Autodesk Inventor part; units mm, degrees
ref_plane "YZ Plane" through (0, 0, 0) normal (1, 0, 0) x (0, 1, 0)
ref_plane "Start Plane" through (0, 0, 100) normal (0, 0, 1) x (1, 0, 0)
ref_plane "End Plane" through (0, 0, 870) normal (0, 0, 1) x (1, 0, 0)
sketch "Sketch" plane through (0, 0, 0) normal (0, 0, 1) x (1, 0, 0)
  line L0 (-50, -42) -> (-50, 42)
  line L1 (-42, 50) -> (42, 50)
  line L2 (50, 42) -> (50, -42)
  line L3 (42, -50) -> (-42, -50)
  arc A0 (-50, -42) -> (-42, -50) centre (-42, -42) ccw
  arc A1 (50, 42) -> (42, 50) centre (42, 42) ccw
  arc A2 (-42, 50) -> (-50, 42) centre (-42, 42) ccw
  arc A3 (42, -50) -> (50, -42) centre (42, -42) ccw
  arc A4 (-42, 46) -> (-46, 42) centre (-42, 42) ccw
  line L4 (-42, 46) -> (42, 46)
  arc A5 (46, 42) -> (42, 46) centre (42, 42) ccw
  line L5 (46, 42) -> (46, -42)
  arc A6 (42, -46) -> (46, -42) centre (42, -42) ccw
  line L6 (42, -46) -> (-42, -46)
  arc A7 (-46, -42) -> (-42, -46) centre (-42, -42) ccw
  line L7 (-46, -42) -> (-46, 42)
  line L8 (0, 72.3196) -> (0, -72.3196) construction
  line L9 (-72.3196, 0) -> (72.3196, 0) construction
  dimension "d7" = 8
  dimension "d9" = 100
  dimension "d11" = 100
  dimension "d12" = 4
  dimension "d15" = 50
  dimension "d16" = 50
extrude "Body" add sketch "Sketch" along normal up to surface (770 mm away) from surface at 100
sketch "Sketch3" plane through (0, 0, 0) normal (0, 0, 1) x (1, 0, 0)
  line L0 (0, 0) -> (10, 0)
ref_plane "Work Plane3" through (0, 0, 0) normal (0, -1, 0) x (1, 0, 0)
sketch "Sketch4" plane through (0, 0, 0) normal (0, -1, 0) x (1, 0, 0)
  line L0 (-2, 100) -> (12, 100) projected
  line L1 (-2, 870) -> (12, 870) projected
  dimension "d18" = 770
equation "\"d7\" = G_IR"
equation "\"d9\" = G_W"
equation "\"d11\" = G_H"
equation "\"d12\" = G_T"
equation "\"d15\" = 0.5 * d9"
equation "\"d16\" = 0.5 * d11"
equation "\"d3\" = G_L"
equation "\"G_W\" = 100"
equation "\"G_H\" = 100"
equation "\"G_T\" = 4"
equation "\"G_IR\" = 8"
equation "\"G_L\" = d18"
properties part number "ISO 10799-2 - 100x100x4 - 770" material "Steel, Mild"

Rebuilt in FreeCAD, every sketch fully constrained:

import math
import FreeCAD as App
import Part
import Sketcher

V = App.Vector
Q = App.Units.Quantity

doc = App.newDocument("Part")
body = doc.addObject("PartDesign::Body", "Body")

# Sketch on XY plane
sketch1 = body.newObject("Sketcher::SketchObject", "Sketch")
sketch1.AttachmentSupport = (doc.getObject("XY_Plane"), [""])
sketch1.MapMode = "FlatFace"
sketch1.AttachmentOffset = App.Placement(V(0, 0, 100), App.Rotation())
sketch1.addGeometry([
    Part.LineSegment(V(-50, 42, 0), V(-50, -42, 0)),  # 0
    Part.ArcOfCircle(Part.Circle(V(-42, -42, 0), V(0, 0, 1), 8), math.radians(180), math.radians(270)),  # 1
    Part.LineSegment(V(-42, -50, 0), V(42, -50, 0)),  # 2
    Part.ArcOfCircle(Part.Circle(V(42, -42, 0), V(0, 0, 1), 8), math.radians(-90), math.radians(0)),  # 3
    Part.LineSegment(V(50, -42, 0), V(50, 42, 0)),  # 4
    Part.ArcOfCircle(Part.Circle(V(42, 42, 0), V(0, 0, 1), 8), math.radians(0), math.radians(90)),  # 5
    Part.LineSegment(V(42, 50, 0), V(-42, 50, 0)),  # 6
    Part.ArcOfCircle(Part.Circle(V(-42, 42, 0), V(0, 0, 1), 8), math.radians(90), math.radians(180)),  # 7
    Part.ArcOfCircle(Part.Circle(V(-42, 42, 0), V(0, 0, 1), 4), math.radians(90), math.radians(180)),  # 8
    Part.LineSegment(V(-42, 46, 0), V(42, 46, 0)),  # 9
    Part.ArcOfCircle(Part.Circle(V(42, 42, 0), V(0, 0, 1), 4), math.radians(0), math.radians(90)),  # 10
    Part.LineSegment(V(46, 42, 0), V(46, -42, 0)),  # 11
    Part.ArcOfCircle(Part.Circle(V(42, -42, 0), V(0, 0, 1), 4), math.radians(-90), math.radians(0)),  # 12
    Part.LineSegment(V(42, -46, 0), V(-42, -46, 0)),  # 13
    Part.ArcOfCircle(Part.Circle(V(-42, -42, 0), V(0, 0, 1), 4), math.radians(180), math.radians(270)),  # 14
    Part.LineSegment(V(-46, -42, 0), V(-46, 42, 0)),  # 15
], False)
sketch1.addConstraint([
    Sketcher.Constraint("Tangent", 0, 2, 1, 1),
    Sketcher.Constraint("Tangent", 1, 2, 2, 1),
    Sketcher.Constraint("Tangent", 2, 2, 3, 1),
    Sketcher.Constraint("Tangent", 3, 2, 4, 1),
    Sketcher.Constraint("Tangent", 4, 2, 5, 1),
    Sketcher.Constraint("Tangent", 5, 2, 6, 1),
    Sketcher.Constraint("Tangent", 6, 2, 7, 1),
    Sketcher.Constraint("Tangent", 7, 2, 0, 1),
    Sketcher.Constraint("Tangent", 8, 1, 9, 1),
    Sketcher.Constraint("Tangent", 9, 2, 10, 2),
    Sketcher.Constraint("Tangent", 10, 1, 11, 1),
    Sketcher.Constraint("Tangent", 11, 2, 12, 2),
    Sketcher.Constraint("Tangent", 12, 1, 13, 1),
    Sketcher.Constraint("Tangent", 13, 2, 14, 2),
    Sketcher.Constraint("Tangent", 14, 1, 15, 1),
    Sketcher.Constraint("Tangent", 15, 2, 8, 2),
    Sketcher.Constraint("Vertical", 0),
    Sketcher.Constraint("Horizontal", 2),
    Sketcher.Constraint("Vertical", 4),
    Sketcher.Constraint("Horizontal", 6),
    Sketcher.Constraint("Horizontal", 9),
    Sketcher.Constraint("Vertical", 11),
    Sketcher.Constraint("Horizontal", 13),
    Sketcher.Constraint("Vertical", 15),
    Sketcher.Constraint("Coincident", 8, 3, 7, 3),
    Sketcher.Constraint("Coincident", 10, 3, 5, 3),
    Sketcher.Constraint("Coincident", 12, 3, 3, 3),
    Sketcher.Constraint("Equal", 1, 3),
    Sketcher.Constraint("Equal", 3, 5),
    Sketcher.Constraint("Equal", 5, 7),
    Sketcher.Constraint("Equal", 12, 14),
    Sketcher.Constraint("Symmetric", 1, 3, 5, 3, -1, 1),
    Sketcher.Constraint("Equal", 13, 0),
    Sketcher.Constraint("Radius", 1, Q("8 mm")),
    Sketcher.Constraint("Radius", 8, Q("4 mm")),
    Sketcher.Constraint("DistanceX", 0, 2, -1, 1, Q("50 mm")),
])
pad1 = body.newObject("PartDesign::Pad", "Pad")
pad1.Profile = sketch1
pad1.Length = 770

doc.recompute()
